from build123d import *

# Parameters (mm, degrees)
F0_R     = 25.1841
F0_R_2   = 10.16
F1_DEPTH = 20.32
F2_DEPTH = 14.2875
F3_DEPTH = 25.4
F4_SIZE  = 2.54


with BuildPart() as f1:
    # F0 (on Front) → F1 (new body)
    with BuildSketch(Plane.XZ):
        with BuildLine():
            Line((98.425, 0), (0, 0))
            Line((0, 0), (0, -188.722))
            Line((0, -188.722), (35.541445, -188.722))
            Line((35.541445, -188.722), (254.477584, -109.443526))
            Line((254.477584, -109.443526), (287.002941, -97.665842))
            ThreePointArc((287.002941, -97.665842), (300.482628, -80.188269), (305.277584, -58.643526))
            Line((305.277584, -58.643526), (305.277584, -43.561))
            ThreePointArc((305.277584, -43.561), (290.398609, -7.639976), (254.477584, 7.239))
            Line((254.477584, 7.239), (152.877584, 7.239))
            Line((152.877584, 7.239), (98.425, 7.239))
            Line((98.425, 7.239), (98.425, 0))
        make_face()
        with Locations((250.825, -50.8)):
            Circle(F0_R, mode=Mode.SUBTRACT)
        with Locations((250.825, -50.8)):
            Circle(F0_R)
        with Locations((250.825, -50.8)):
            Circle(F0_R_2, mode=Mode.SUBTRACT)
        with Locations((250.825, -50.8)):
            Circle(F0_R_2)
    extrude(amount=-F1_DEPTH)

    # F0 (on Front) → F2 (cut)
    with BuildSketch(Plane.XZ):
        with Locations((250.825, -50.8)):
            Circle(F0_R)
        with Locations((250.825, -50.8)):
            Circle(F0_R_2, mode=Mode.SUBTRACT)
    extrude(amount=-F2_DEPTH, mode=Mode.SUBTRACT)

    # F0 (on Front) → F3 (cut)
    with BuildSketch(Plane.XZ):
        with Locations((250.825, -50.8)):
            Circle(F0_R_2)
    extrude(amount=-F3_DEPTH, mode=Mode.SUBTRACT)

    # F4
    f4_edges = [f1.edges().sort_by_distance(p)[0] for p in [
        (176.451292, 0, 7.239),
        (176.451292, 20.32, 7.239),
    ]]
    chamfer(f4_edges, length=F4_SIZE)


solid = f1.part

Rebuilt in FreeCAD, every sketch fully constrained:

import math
import FreeCAD as App
import Part
import Sketcher
from FreeCAD import Vector
Q = App.Units.Quantity


def edges_at(feature, points):
    """Names of the edges that pass closest to the given points."""
    edges = feature.Shape.Edges
    near = lambda p: min(range(len(edges)), key=lambda i: edges[i].distToShape(Part.Vertex(*p))[0])
    return sorted({f"Edge{near(p) + 1}" for p in points})

doc = App.newDocument("Part")
body = doc.addObject("PartDesign::Body", "Body")

# Sketch on XZ plane
sketch1 = body.newObject("Sketcher::SketchObject", "Sketch")
sketch1.AttachmentSupport = (doc.getObject("XZ_Plane"), [""])
sketch1.MapMode = "FlatFace"
sketch1.addGeometry(Part.LineSegment(Vector(98, 0, 0), Vector(0, 0, 0)), False)
sketch1.addGeometry(Part.LineSegment(Vector(0, 0, 0), Vector(0, -189, 0)), False)
sketch1.addGeometry(Part.LineSegment(Vector(0, -189, 0), Vector(36, -189, 0)), False)
sketch1.addGeometry(Part.LineSegment(Vector(36, -189, 0), Vector(254, -109, 0)), False)
sketch1.addGeometry(Part.LineSegment(Vector(254, -109, 0), Vector(287, -98, 0)), False)
sketch1.addGeometry(Part.ArcOfCircle(Part.Circle(Vector(254, -59, 0), Vector(0, 0, 1), 51), math.radians(-50), math.radians(0)), False)
sketch1.addGeometry(Part.LineSegment(Vector(305, -59, 0), Vector(305, -44, 0)), False)
sketch1.addGeometry(Part.ArcOfCircle(Part.Circle(Vector(254, -44, 0), Vector(0, 0, 1), 51), math.radians(0), math.radians(90)), False)
sketch1.addGeometry(Part.LineSegment(Vector(254, 7, 0), Vector(98, 7, 0)), False)
sketch1.addGeometry(Part.LineSegment(Vector(98, 7, 0), Vector(98, 0, 0)), False)
sketch1.addConstraint(Sketcher.Constraint("Coincident", 0, 2, 1, 1))
sketch1.addConstraint(Sketcher.Constraint("Coincident", 1, 2, 2, 1))
sketch1.addConstraint(Sketcher.Constraint("Coincident", 2, 2, 3, 1))
sketch1.addConstraint(Sketcher.Constraint("Coincident", 3, 2, 4, 1))
sketch1.addConstraint(Sketcher.Constraint("Coincident", 4, 2, 5, 1))
sketch1.addConstraint(Sketcher.Constraint("Tangent", 5, 2, 6, 1))
sketch1.addConstraint(Sketcher.Constraint("Tangent", 6, 2, 7, 1))
sketch1.addConstraint(Sketcher.Constraint("Tangent", 7, 2, 8, 1))
sketch1.addConstraint(Sketcher.Constraint("Coincident", 8, 2, 9, 1))
sketch1.addConstraint(Sketcher.Constraint("Coincident", 9, 2, 0, 1))
sketch1.addConstraint(Sketcher.Constraint("Horizontal", 0))
sketch1.addConstraint(Sketcher.Constraint("Vertical", 1))
sketch1.addConstraint(Sketcher.Constraint("Horizontal", 2))
sketch1.addConstraint(Sketcher.Constraint("Vertical", 6))
sketch1.addConstraint(Sketcher.Constraint("Horizontal", 8))
sketch1.addConstraint(Sketcher.Constraint("Vertical", 9))
sketch1.addConstraint(Sketcher.Constraint("Coincident", 0, 2, -1, 1))
sketch1.addConstraint(Sketcher.Constraint("Parallel", 3, 4))
sketch1.addConstraint(Sketcher.Constraint("Vertical", 7, 3, 3, 2))
sketch1.addConstraint(Sketcher.Constraint("Radius", 5, Q("1.9999999 in")))
sketch1.addConstraint(Sketcher.Constraint("Radius", 7, Q("2 in")))
sketch1.addConstraint(Sketcher.Constraint("DistanceY", 3, 2, 5, 3, Q("2 in")))
sketch1.addConstraint(Sketcher.Constraint("DistanceY", 1, 2, 1, 1, Q("7.43 in")))
sketch1.addConstraint(Sketcher.Constraint("DistanceX", 0, 2, 0, 1, Q("3.875 in")))
sketch1.addConstraint(Sketcher.Constraint("DistanceY", 9, 2, 9, 1, Q("0.285 in")))
sketch1.addConstraint(Sketcher.Constraint("Distance", 4, 34.59209))
sketch1.addConstraint(Sketcher.Constraint("DistanceX", 2, 1, 2, 2, 35.541445))
sketch1.addConstraint(Sketcher.Constraint("DistanceX", 8, 2, 8, 1, 156.052584))
pad1 = body.newObject("PartDesign::Pad", "Pad")
pad1.Profile = sketch1
pad1.Length = Q("0.8 in")
pad1.Reversed = True

# Sketch on XZ plane
sketch2 = body.newObject("Sketcher::SketchObject", "Sketch001")
sketch2.AttachmentSupport = (doc.getObject("XZ_Plane"), [""])
sketch2.MapMode = "FlatFace"
sketch2.addGeometry(Part.Circle(Vector(251, -51, 0), Vector(0, 0, 1), 25), False)
sketch2.addGeometry(Part.Circle(Vector(251, -51, 0), Vector(0, 0, 1), 10), False)
sketch2.addConstraint(Sketcher.Constraint("Coincident", 1, 3, 0, 3))
sketch2.addConstraint(Sketcher.Constraint("Diameter", 1, Q("0.8 in")))
sketch2.addConstraint(Sketcher.Constraint("Diameter", 0, Q("1.983 in")))
sketch2.addConstraint(Sketcher.Constraint("DistanceY", 0, 3, -1, 1, Q("2 in")))
sketch2.addConstraint(Sketcher.Constraint("DistanceX", -1, 1, 0, 3, Q("9.875 in")))
pocket1 = body.newObject("PartDesign::Pocket", "Pocket")
pocket1.Profile = sketch2
pocket1.Length = Q("0.5625 in")

# Sketch on XZ plane
sketch3 = body.newObject("Sketcher::SketchObject", "Sketch002")
sketch3.AttachmentSupport = (doc.getObject("XZ_Plane"), [""])
sketch3.MapMode = "FlatFace"
sketch3.addGeometry(Part.Circle(Vector(251, -51, 0), Vector(0, 0, 1), 10), False)
sketch3.addConstraint(Sketcher.Constraint("Diameter", 0, Q("0.8 in")))
sketch3.addConstraint(Sketcher.Constraint("DistanceY", 0, 3, -1, 1, Q("2 in")))
sketch3.addConstraint(Sketcher.Constraint("DistanceX", -1, 1, 0, 3, Q("9.875 in")))
pocket2 = body.newObject("PartDesign::Pocket", "Pocket001")
pocket2.Profile = sketch3
pocket2.Length = Q("1 in")
doc.recompute()

chamfer = body.newObject("PartDesign::Chamfer", "Chamfer")
chamfer.Base = (pocket2, edges_at(pocket2, [(176.451, 0, 7.239), (176.451, 20.32, 7.239)]))
chamfer.Size = Q("0.1 in")

doc.recompute()
